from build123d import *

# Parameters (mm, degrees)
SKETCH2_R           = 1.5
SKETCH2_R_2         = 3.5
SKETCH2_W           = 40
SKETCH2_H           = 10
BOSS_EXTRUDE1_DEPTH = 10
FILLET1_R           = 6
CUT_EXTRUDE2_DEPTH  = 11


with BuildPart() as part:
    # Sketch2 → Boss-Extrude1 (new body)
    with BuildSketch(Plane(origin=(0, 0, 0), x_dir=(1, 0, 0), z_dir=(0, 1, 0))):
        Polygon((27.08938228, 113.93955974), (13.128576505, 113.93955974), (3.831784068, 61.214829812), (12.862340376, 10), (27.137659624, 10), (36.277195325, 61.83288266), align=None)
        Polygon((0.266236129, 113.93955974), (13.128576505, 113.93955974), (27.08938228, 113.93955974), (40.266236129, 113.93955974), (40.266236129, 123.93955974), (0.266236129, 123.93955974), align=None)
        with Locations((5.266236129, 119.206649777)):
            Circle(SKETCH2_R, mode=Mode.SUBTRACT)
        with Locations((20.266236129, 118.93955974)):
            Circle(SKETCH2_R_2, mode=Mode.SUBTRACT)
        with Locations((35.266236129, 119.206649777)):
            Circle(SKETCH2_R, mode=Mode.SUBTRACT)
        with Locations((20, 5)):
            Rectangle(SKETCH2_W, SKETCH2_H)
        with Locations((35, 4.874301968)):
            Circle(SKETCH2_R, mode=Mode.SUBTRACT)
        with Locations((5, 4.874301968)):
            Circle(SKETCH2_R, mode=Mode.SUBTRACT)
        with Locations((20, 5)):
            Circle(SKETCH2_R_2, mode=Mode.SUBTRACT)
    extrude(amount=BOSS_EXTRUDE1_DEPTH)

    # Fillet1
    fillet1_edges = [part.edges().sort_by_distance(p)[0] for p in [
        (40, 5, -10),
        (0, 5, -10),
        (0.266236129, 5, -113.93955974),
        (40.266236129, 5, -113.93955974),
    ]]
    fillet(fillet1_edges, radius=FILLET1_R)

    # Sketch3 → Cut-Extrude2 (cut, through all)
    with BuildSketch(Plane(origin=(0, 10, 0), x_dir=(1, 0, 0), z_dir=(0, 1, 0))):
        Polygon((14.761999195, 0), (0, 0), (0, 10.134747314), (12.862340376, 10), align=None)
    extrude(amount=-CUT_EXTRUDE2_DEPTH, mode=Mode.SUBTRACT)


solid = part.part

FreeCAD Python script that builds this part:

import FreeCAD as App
import Part
import Sketcher
from FreeCAD import Vector
Q = App.Units.Quantity


def edges_at(feature, points):
    """Names of the edges that pass closest to the given points."""
    edges = feature.Shape.Edges
    near = lambda p: min(range(len(edges)), key=lambda i: edges[i].distToShape(Part.Vertex(*p))[0])
    return sorted({f"Edge{near(p) + 1}" for p in points})


def add_polygon(sketch, points):
    """Adds a closed chain of lines whose ends are joined by coincident constraints."""
    first, n = sketch.GeometryCount, len(points)
    for a, b in zip(points, points[1:] + points[:1]):
        sketch.addGeometry(Part.LineSegment(App.Vector(*a, 0), App.Vector(*b, 0)), False)
    for i in range(n):
        sketch.addConstraint(Sketcher.Constraint("Coincident", first + i, 2, first + (i + 1) % n, 1))

doc = App.newDocument("Part")
body = doc.addObject("PartDesign::Body", "Body")

sketch1 = body.newObject("Sketcher::SketchObject", "Sketch")
sketch1.AttachmentSupport = (doc.getObject("XZ_Plane"), [""])
sketch1.MapMode = "FlatFace"
add_polygon(sketch1, [(13.128577, -113.93956), (3.831784, -61.21483), (12.86234, -10), (0, -10), (0, 0), (40, 0), (40, -10), (27.13766, -10), (36.277195, -61.832883), (27.089382, -113.93956), (40.266236, -113.93956), (40.266236, -123.93956), (0.266236, -123.93956), (0.266236, -113.93956)])
sketch1.addGeometry(Part.Circle(Vector(5, -4.874302, 0), Vector(0, 0, 1), 1.5), False)
sketch1.addGeometry(Part.Circle(Vector(20, -5, 0), Vector(0, 0, 1), 3.5), False)
sketch1.addGeometry(Part.Circle(Vector(35, -4.874302, 0), Vector(0, 0, 1), 1.5), False)
sketch1.addGeometry(Part.Circle(Vector(5.266236, -119.20665, 0), Vector(0, 0, 1), 1.5), False)
sketch1.addGeometry(Part.Circle(Vector(20.266236, -118.93956, 0), Vector(0, 0, 1), 3.5), False)
sketch1.addGeometry(Part.Circle(Vector(35.266236, -119.20665, 0), Vector(0, 0, 1), 1.5), False)
sketch1.addConstraint([
    Sketcher.Constraint("Horizontal", 2),
    Sketcher.Constraint("Vertical", 3),
    Sketcher.Constraint("Horizontal", 4),
    Sketcher.Constraint("Vertical", 5),
    Sketcher.Constraint("Horizontal", 6),
    Sketcher.Constraint("Horizontal", 9),
    Sketcher.Constraint("Vertical", 10),
    Sketcher.Constraint("Horizontal", 11),
    Sketcher.Constraint("Vertical", 12),
    Sketcher.Constraint("Horizontal", 13),
    Sketcher.Constraint("Coincident", 3, 2, -1, 1),
    Sketcher.Constraint("Equal", 14, 16),
    Sketcher.Constraint("Equal", 16, 17),
    Sketcher.Constraint("Equal", 15, 18),
    Sketcher.Constraint("Equal", 17, 19),
    Sketcher.Constraint("Parallel", 0, 7),
    Sketcher.Constraint("Parallel", 1, 8),
    Sketcher.Constraint("Horizontal", 14, 3, 16, 3),
    Sketcher.Constraint("Horizontal", 17, 3, 19, 3),
    Sketcher.Constraint("Horizontal", 2, 2, 5, 2),
    Sketcher.Constraint("Horizontal", 9, 2, 12, 2),
    Sketcher.Constraint("Equal", 2, 6),
    Sketcher.Constraint("Equal", 4, 11),
    Sketcher.Constraint("Equal", 6, 13),
    Sketcher.Constraint("Equal", 5, 10),
    Sketcher.Constraint("Diameter", 14, 3.0),
    Sketcher.Constraint("Diameter", 15, 7.0),
    Sketcher.Constraint("DistanceX", 4, 1, 4, 2, 40.0),
    Sketcher.Constraint("DistanceY", 3, 1, 3, 2, 10.0),
    Sketcher.Constraint("Angle", 0, Q("100 deg")),
    Sketcher.Constraint("Angle", 1, Q("80 deg")),
    Sketcher.Constraint("DistanceX", -1, 1, 14, 3, 5.0),
    Sketcher.Constraint("DistanceX", -1, 1, 15, 3, 20.0),
    Sketcher.Constraint("DistanceY", 15, 3, -1, 1, 5.0),
    Sketcher.Constraint("DistanceX", -1, 1, 16, 3, 35.0),
    Sketcher.Constraint("DistanceX", 17, 3, 18, 3, 15.0),
    Sketcher.Constraint("DistanceX", 18, 3, 19, 3, 15.0),
    Sketcher.Constraint("DistanceY", 18, 3, 8, 2, 5.0),
    Sketcher.Constraint("DistanceX", 19, 3, 9, 2, 5.0),
    Sketcher.Constraint("Distance", 1, 52.004901),
    Sketcher.Constraint("DistanceX", 2, 2, 2, 1, 12.86234),
    Sketcher.Constraint("DistanceY", 14, 3, -1, 1, 4.874302),
    Sketcher.Constraint("DistanceX", 0, 2, 8, 2, 23.257598),
    Sketcher.Constraint("Distance", 7, 52.632488),
    Sketcher.Constraint("DistanceY", 17, 3, -1, 1, 119.20665),
])
pad1 = body.newObject("PartDesign::Pad", "Pad")
pad1.Profile = sketch1
pad1.Length = 10
pad1.Reversed = True
doc.recompute()

fillet = body.newObject("PartDesign::Fillet", "Fillet")
fillet.Base = (pad1, edges_at(pad1, [
    (40, 5, -10),
    (0, 5, -10),
    (0.266, 5, -113.94),
    (40.266, 5, -113.94),
]))
fillet.Radius = 6

sketch2 = body.newObject("Sketcher::SketchObject", "Sketch001")
sketch2.AttachmentSupport = (doc.getObject("XZ_Plane"), [""])
sketch2.MapMode = "FlatFace"
sketch2.AttachmentOffset = App.Placement(Vector(0, 0, -10), App.Rotation())
add_polygon(sketch2, [(0, 0), (14.761999, 0), (12.86234, -10), (0, -10.134747)])
sketch2.addConstraint([
    Sketcher.Constraint("Horizontal", 0),
    Sketcher.Constraint("Vertical", 3),
    Sketcher.Constraint("Coincident", 3, 2, -1, 1),
    Sketcher.Constraint("DistanceY", 1, 2, -1, 1, 10.0),
    Sketcher.Constraint("DistanceX", 0, 1, 0, 2, 14.761999),
    Sketcher.Constraint("DistanceY", 3, 1, 3, 2, 10.134747),
    Sketcher.Constraint("DistanceX", -1, 1, 1, 2, 12.86234),
])
pocket1 = body.newObject("PartDesign::Pocket", "Pocket")
pocket1.Profile = sketch2
pocket1.Type = "ThroughAll"
pocket1.Reversed = True

doc.recompute()
